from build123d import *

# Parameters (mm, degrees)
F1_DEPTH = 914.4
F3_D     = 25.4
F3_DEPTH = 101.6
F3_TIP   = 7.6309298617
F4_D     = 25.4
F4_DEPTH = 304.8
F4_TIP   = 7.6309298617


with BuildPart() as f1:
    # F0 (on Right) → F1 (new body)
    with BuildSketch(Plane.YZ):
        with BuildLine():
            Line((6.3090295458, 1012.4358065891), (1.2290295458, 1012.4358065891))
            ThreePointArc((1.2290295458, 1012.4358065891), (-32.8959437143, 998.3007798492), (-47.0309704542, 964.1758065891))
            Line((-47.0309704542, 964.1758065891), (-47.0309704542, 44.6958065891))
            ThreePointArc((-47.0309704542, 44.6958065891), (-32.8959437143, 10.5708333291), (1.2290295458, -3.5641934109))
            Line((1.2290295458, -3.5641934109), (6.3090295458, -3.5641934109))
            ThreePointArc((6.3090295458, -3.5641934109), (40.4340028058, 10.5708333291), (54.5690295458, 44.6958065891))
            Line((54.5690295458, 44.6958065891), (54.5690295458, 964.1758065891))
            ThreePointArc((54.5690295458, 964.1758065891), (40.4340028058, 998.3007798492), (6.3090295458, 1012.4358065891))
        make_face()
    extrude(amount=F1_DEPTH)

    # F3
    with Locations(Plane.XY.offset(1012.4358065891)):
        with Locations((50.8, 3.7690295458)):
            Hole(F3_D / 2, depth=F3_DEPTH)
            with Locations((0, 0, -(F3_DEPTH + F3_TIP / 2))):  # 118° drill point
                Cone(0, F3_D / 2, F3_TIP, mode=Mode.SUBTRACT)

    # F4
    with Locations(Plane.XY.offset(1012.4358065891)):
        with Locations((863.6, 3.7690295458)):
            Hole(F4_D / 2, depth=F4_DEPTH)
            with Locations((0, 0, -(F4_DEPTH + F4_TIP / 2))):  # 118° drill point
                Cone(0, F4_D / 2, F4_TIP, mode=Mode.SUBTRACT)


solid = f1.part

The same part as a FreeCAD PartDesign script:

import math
import FreeCAD as App
import Part
import Sketcher
Q = App.Units.Quantity

doc = App.newDocument("Part")
params = doc.addObject("Spreadsheet::Sheet", "Params")
for row, (alias, value) in enumerate([
    ("sketch1_radius", "1.9 in"),
    ("sketch1_width", "0.2 in"),
    ("sketch1_height", "36.2 in"),
    ("pad1_length", "36 in"),
    ("sketch2_diameter", "1 in"),
    ("hole_diameter", "1 in"),
    ("hole_depth", "4 in"),
    ("sketch3_diameter", "1 in"),
    ("hole2_diameter", "1 in"),
    ("hole2_depth", "12 in"),
], start=1):
    params.set(f"A{row}", alias)
    params.set(f"B{row}", "=" + value)
    params.setAlias(f"B{row}", alias)

body = doc.addObject("PartDesign::Body", "Body")

sketch1 = body.newObject("Sketcher::SketchObject", "Sketch")
sketch1.AttachmentSupport = (doc.getObject("YZ_Plane"), [""])
sketch1.MapMode = "FlatFace"
sketch1.addGeometry(Part.LineSegment(App.Vector(6, 1012, 0), App.Vector(1, 1012, 0)), False)
sketch1.addGeometry(Part.ArcOfCircle(Part.Circle(App.Vector(1, 964, 0), App.Vector(0, 0, 1), 48), math.radians(90), math.radians(180)), False)
sketch1.addGeometry(Part.LineSegment(App.Vector(-47, 964, 0), App.Vector(-47, 45, 0)), False)
sketch1.addGeometry(Part.ArcOfCircle(Part.Circle(App.Vector(1, 45, 0), App.Vector(0, 0, 1), 48), math.radians(180), math.radians(270)), False)
sketch1.addGeometry(Part.LineSegment(App.Vector(1, -4, 0), App.Vector(6, -4, 0)), False)
sketch1.addGeometry(Part.ArcOfCircle(Part.Circle(App.Vector(6, 45, 0), App.Vector(0, 0, 1), 48), math.radians(-90), math.radians(0)), False)
sketch1.addGeometry(Part.LineSegment(App.Vector(55, 45, 0), App.Vector(55, 964, 0)), False)
sketch1.addGeometry(Part.ArcOfCircle(Part.Circle(App.Vector(6, 964, 0), App.Vector(0, 0, 1), 48), math.radians(0), math.radians(90)), False)
sketch1.addConstraint(Sketcher.Constraint("Tangent", 0, 2, 1, 1))
sketch1.addConstraint(Sketcher.Constraint("Tangent", 1, 2, 2, 1))
sketch1.addConstraint(Sketcher.Constraint("Tangent", 2, 2, 3, 1))
sketch1.addConstraint(Sketcher.Constraint("Tangent", 3, 2, 4, 1))
sketch1.addConstraint(Sketcher.Constraint("Tangent", 4, 2, 5, 1))
sketch1.addConstraint(Sketcher.Constraint("Tangent", 5, 2, 6, 1))
sketch1.addConstraint(Sketcher.Constraint("Tangent", 6, 2, 7, 1))
sketch1.addConstraint(Sketcher.Constraint("Tangent", 7, 2, 0, 1))
sketch1.addConstraint(Sketcher.Constraint("Horizontal", 0))
sketch1.addConstraint(Sketcher.Constraint("Vertical", 2))
sketch1.addConstraint(Sketcher.Constraint("Horizontal", 4))
sketch1.addConstraint(Sketcher.Constraint("Vertical", 6))
sketch1.addConstraint(Sketcher.Constraint("Equal", 1, 3))
sketch1.addConstraint(Sketcher.Constraint("Equal", 3, 5))
sketch1.addConstraint(Sketcher.Constraint("Equal", 5, 7))
sketch1.addConstraint(Sketcher.Constraint("Radius", 1, Q("1.9 in")))
sketch1.addConstraint(Sketcher.Constraint("DistanceX", 0, 2, 0, 1, Q("0.2 in")))
sketch1.addConstraint(Sketcher.Constraint("DistanceY", 2, 2, 2, 1, Q("36.2 in")))
sketch1.addConstraint(Sketcher.Constraint("DistanceX", -1, 1, 1, 3, Q("1.22903 mm")))
sketch1.addConstraint(Sketcher.Constraint("DistanceY", -1, 1, 1, 3, Q("964.175807 mm")))
sketch1.setExpression("Constraints[15]", "Params.sketch1_radius")
sketch1.setExpression("Constraints[16]", "Params.sketch1_width")
sketch1.setExpression("Constraints[17]", "Params.sketch1_height")
pad1 = body.newObject("PartDesign::Pad", "Pad")
pad1.Profile = sketch1
pad1.setExpression("Length", "Params.pad1_length")

sketch2 = body.newObject("Sketcher::SketchObject", "Sketch001")
sketch2.AttachmentSupport = (doc.getObject("XY_Plane"), [""])
sketch2.MapMode = "FlatFace"
sketch2.AttachmentOffset = App.Placement(App.Vector(0, 0, 1012.435807), App.Rotation())
sketch2.addGeometry(Part.Circle(App.Vector(51, 4, 0), App.Vector(0, 0, 1), 13), False)
sketch2.addConstraint(Sketcher.Constraint("Diameter", 0, Q("1 in")))
sketch2.addConstraint(Sketcher.Constraint("DistanceX", -1, 1, 0, 3, Q("2 in")))
sketch2.addConstraint(Sketcher.Constraint("DistanceY", -1, 1, 0, 3, Q("3.76903 mm")))
sketch2.setExpression("Constraints[0]", "Params.sketch2_diameter")
doc.recompute()
hole = body.newObject("PartDesign::Hole", "Hole")
hole.Profile = sketch2
hole.ThreadType = "None"
hole.setExpression("Diameter", "Params.hole_diameter")
hole.DepthType = "Dimension"
hole.setExpression("Depth", "Params.hole_depth")
hole.DrillPoint = "Angled"
hole.DrillPointAngle = 118

sketch3 = body.newObject("Sketcher::SketchObject", "Sketch002")
sketch3.AttachmentSupport = (doc.getObject("XY_Plane"), [""])
sketch3.MapMode = "FlatFace"
sketch3.AttachmentOffset = App.Placement(App.Vector(0, 0, 1012.435807), App.Rotation())
sketch3.addGeometry(Part.Circle(App.Vector(864, 4, 0), App.Vector(0, 0, 1), 13), False)
sketch3.addConstraint(Sketcher.Constraint("Diameter", 0, Q("1 in")))
sketch3.addConstraint(Sketcher.Constraint("DistanceX", -1, 1, 0, 3, Q("34 in")))
sketch3.addConstraint(Sketcher.Constraint("DistanceY", -1, 1, 0, 3, Q("3.76903 mm")))
sketch3.setExpression("Constraints[0]", "Params.sketch3_diameter")
doc.recompute()
hole2 = body.newObject("PartDesign::Hole", "Hole001")
hole2.Profile = sketch3
hole2.ThreadType = "None"
hole2.setExpression("Diameter", "Params.hole2_diameter")
hole2.DepthType = "Dimension"
hole2.setExpression("Depth", "Params.hole2_depth")
hole2.DrillPoint = "Angled"
hole2.DrillPointAngle = 118

doc.recompute()
